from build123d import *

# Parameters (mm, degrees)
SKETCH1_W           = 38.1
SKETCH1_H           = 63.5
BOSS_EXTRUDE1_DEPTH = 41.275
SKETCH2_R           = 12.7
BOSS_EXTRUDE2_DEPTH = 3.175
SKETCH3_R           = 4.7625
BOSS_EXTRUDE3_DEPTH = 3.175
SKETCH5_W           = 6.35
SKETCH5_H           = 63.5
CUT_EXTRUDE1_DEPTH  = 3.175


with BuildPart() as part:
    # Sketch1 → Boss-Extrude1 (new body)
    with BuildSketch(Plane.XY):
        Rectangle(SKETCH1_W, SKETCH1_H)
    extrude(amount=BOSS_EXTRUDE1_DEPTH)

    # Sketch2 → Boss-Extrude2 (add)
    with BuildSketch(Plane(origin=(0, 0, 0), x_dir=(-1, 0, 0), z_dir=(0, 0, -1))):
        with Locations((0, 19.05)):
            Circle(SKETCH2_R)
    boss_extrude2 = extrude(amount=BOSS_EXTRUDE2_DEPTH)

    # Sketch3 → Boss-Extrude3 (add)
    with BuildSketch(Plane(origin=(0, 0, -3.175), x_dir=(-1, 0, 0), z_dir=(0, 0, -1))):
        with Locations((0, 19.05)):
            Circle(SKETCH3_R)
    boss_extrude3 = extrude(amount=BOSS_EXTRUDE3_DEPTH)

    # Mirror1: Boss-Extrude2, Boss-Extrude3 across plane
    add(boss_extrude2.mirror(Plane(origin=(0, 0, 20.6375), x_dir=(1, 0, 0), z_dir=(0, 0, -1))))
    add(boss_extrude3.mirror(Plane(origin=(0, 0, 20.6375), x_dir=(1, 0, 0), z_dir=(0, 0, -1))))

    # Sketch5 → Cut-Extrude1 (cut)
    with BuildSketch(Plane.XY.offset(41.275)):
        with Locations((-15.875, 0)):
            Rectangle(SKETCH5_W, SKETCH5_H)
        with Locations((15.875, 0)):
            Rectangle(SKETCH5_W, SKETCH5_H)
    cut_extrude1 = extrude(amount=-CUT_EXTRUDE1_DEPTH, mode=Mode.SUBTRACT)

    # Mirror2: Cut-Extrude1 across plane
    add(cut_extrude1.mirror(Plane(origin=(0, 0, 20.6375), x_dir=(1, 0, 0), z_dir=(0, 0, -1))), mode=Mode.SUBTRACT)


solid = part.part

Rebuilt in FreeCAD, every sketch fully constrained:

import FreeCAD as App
import Part
import Sketcher
Q = App.Units.Quantity


def add_polygon(sketch, points):
    """Adds a closed chain of lines whose ends are joined by coincident constraints."""
    first, n = sketch.GeometryCount, len(points)
    for a, b in zip(points, points[1:] + points[:1]):
        sketch.addGeometry(Part.LineSegment(App.Vector(*a, 0), App.Vector(*b, 0)), False)
    for i in range(n):
        sketch.addConstraint(Sketcher.Constraint("Coincident", first + i, 2, first + (i + 1) % n, 1))

doc = App.newDocument("Part")
body = doc.addObject("PartDesign::Body", "Body")

# Sketch on XY plane
sketch1 = doc.addObject("Sketcher::SketchObject", "Sketch")
body.addObject(sketch1)
sketch1.AttachmentSupport = (doc.XY_Plane, [""])
sketch1.MapMode = "FlatFace"
add_polygon(sketch1, [(-19, 32), (-19, -32), (19, -32), (19, 32)])  # lines 0-3
sketch1.addConstraint(Sketcher.Constraint("Vertical", 0))
sketch1.addConstraint(Sketcher.Constraint("Horizontal", 1))
sketch1.addConstraint(Sketcher.Constraint("Vertical", 2))
sketch1.addConstraint(Sketcher.Constraint("Horizontal", 3))
sketch1.addConstraint(Sketcher.Constraint("Symmetric", 0, 2, 2, 2, -1, 1))
sketch1.addConstraint(Sketcher.Constraint("DistanceX", 1, 1, 1, 2, Q("1.5 in")))
sketch1.addConstraint(Sketcher.Constraint("DistanceY", 0, 2, 0, 1, Q("2.5 in")))
pad1 = doc.addObject("PartDesign::Pad", "Pad")
body.addObject(pad1)
pad1.Profile = sketch1
pad1.Length = Q("1.625 in")

# Sketch on XY plane
sketch2 = doc.addObject("Sketcher::SketchObject", "Sketch001")
body.addObject(sketch2)
sketch2.AttachmentSupport = (doc.XY_Plane, [""])
sketch2.MapMode = "FlatFace"
sketch2.addGeometry(Part.Circle(App.Vector(0, 19, 0), App.Vector(0, 0, 1), 13), False)
sketch2.addConstraint(Sketcher.Constraint("PointOnObject", 0, 3, -2))
sketch2.addConstraint(Sketcher.Constraint("Diameter", 0, Q("1 in")))
sketch2.addConstraint(Sketcher.Constraint("DistanceY", -1, 1, 0, 3, Q("0.75 in")))
pad2 = doc.addObject("PartDesign::Pad", "Pad001")
body.addObject(pad2)
pad2.Profile = sketch2
pad2.Length = Q("0.125 in")
pad2.Reversed = True

# Sketch on XY plane
sketch3 = doc.addObject("Sketcher::SketchObject", "Sketch002")
body.addObject(sketch3)
sketch3.AttachmentSupport = (doc.XY_Plane, [""])
sketch3.MapMode = "FlatFace"
sketch3.AttachmentOffset = App.Placement(App.Vector(0, 0, -0.125 * 25.4), App.Rotation())
sketch3.addGeometry(Part.Circle(App.Vector(0, 19.1, 0), App.Vector(0, 0, 1), 4.8), False)
sketch3.addConstraint(Sketcher.Constraint("PointOnObject", 0, 3, -2))
sketch3.addConstraint(Sketcher.Constraint("Diameter", 0, Q("0.375 in")))
sketch3.addConstraint(Sketcher.Constraint("DistanceY", -1, 1, 0, 3, Q("0.75 in")))
pad3 = doc.addObject("PartDesign::Pad", "Pad002")
body.addObject(pad3)
pad3.Profile = sketch3
pad3.Length = Q("0.125 in")
pad3.Reversed = True
doc.recompute()

datumplane = doc.addObject("PartDesign::Plane", "DatumPlane")
body.addObject(datumplane)
datumplane.AttachmentSupport = (doc.XY_Plane, [""])
datumplane.MapMode = "FlatFace"
datumplane.AttachmentOffset = App.Placement(App.Vector(0, 0, 0.8125 * 25.4), App.Rotation())
mirrored = doc.addObject("PartDesign::Mirrored", "Mirrored")
body.addObject(mirrored)
mirrored.Originals = [pad2, pad3]
mirrored.MirrorPlane = (datumplane, [""])
body.Tip = mirrored

# Sketch on XY plane
sketch4 = doc.addObject("Sketcher::SketchObject", "Sketch003")
body.addObject(sketch4)
sketch4.AttachmentSupport = (doc.XY_Plane, [""])
sketch4.MapMode = "FlatFace"
sketch4.AttachmentOffset = App.Placement(App.Vector(0, 0, 1.625 * 25.4), App.Rotation())
add_polygon(sketch4, [(-19, 32), (-19, -32), (-13, -32), (-13, 32)])  # lines 0-3
add_polygon(sketch4, [(13, 32), (13, -32), (19, -32), (19, 32)])  # lines 4-7
sketch4.addConstraint(Sketcher.Constraint("Vertical", 0))
sketch4.addConstraint(Sketcher.Constraint("Horizontal", 1))
sketch4.addConstraint(Sketcher.Constraint("Vertical", 2))
sketch4.addConstraint(Sketcher.Constraint("Horizontal", 3))
sketch4.addConstraint(Sketcher.Constraint("Vertical", 4))
sketch4.addConstraint(Sketcher.Constraint("Horizontal", 5))
sketch4.addConstraint(Sketcher.Constraint("Vertical", 6))
sketch4.addConstraint(Sketcher.Constraint("Horizontal", 7))
sketch4.addConstraint(Sketcher.Constraint("Symmetric", 2, 2, 4, 2, -1, 1))
sketch4.addConstraint(Sketcher.Constraint("Symmetric", 0, 2, 6, 2, -1, 1))
sketch4.addConstraint(Sketcher.Constraint("Horizontal", 1, 2, 4, 2))
sketch4.addConstraint(Sketcher.Constraint("DistanceY", 0, 2, 0, 1, Q("2.5 in")))
sketch4.addConstraint(Sketcher.Constraint("DistanceX", 1, 2, 4, 2, Q("1 in")))
sketch4.addConstraint(Sketcher.Constraint("DistanceX", 1, 1, 1, 2, Q("0.25 in")))
pocket1 = doc.addObject("PartDesign::Pocket", "Pocket")
body.addObject(pocket1)
pocket1.Profile = sketch4
pocket1.Length = Q("0.125 in")
doc.recompute()

datumplane2 = doc.addObject("PartDesign::Plane", "DatumPlane001")
body.addObject(datumplane2)
datumplane2.AttachmentSupport = (doc.XY_Plane, [""])
datumplane2.MapMode = "FlatFace"
datumplane2.AttachmentOffset = App.Placement(App.Vector(0, 0, 0.8125 * 25.4), App.Rotation())
mirrored2 = doc.addObject("PartDesign::Mirrored", "Mirrored001")
body.addObject(mirrored2)
mirrored2.Originals = [pocket1]
mirrored2.MirrorPlane = (datumplane2, [""])
body.Tip = mirrored2

doc.recompute()
